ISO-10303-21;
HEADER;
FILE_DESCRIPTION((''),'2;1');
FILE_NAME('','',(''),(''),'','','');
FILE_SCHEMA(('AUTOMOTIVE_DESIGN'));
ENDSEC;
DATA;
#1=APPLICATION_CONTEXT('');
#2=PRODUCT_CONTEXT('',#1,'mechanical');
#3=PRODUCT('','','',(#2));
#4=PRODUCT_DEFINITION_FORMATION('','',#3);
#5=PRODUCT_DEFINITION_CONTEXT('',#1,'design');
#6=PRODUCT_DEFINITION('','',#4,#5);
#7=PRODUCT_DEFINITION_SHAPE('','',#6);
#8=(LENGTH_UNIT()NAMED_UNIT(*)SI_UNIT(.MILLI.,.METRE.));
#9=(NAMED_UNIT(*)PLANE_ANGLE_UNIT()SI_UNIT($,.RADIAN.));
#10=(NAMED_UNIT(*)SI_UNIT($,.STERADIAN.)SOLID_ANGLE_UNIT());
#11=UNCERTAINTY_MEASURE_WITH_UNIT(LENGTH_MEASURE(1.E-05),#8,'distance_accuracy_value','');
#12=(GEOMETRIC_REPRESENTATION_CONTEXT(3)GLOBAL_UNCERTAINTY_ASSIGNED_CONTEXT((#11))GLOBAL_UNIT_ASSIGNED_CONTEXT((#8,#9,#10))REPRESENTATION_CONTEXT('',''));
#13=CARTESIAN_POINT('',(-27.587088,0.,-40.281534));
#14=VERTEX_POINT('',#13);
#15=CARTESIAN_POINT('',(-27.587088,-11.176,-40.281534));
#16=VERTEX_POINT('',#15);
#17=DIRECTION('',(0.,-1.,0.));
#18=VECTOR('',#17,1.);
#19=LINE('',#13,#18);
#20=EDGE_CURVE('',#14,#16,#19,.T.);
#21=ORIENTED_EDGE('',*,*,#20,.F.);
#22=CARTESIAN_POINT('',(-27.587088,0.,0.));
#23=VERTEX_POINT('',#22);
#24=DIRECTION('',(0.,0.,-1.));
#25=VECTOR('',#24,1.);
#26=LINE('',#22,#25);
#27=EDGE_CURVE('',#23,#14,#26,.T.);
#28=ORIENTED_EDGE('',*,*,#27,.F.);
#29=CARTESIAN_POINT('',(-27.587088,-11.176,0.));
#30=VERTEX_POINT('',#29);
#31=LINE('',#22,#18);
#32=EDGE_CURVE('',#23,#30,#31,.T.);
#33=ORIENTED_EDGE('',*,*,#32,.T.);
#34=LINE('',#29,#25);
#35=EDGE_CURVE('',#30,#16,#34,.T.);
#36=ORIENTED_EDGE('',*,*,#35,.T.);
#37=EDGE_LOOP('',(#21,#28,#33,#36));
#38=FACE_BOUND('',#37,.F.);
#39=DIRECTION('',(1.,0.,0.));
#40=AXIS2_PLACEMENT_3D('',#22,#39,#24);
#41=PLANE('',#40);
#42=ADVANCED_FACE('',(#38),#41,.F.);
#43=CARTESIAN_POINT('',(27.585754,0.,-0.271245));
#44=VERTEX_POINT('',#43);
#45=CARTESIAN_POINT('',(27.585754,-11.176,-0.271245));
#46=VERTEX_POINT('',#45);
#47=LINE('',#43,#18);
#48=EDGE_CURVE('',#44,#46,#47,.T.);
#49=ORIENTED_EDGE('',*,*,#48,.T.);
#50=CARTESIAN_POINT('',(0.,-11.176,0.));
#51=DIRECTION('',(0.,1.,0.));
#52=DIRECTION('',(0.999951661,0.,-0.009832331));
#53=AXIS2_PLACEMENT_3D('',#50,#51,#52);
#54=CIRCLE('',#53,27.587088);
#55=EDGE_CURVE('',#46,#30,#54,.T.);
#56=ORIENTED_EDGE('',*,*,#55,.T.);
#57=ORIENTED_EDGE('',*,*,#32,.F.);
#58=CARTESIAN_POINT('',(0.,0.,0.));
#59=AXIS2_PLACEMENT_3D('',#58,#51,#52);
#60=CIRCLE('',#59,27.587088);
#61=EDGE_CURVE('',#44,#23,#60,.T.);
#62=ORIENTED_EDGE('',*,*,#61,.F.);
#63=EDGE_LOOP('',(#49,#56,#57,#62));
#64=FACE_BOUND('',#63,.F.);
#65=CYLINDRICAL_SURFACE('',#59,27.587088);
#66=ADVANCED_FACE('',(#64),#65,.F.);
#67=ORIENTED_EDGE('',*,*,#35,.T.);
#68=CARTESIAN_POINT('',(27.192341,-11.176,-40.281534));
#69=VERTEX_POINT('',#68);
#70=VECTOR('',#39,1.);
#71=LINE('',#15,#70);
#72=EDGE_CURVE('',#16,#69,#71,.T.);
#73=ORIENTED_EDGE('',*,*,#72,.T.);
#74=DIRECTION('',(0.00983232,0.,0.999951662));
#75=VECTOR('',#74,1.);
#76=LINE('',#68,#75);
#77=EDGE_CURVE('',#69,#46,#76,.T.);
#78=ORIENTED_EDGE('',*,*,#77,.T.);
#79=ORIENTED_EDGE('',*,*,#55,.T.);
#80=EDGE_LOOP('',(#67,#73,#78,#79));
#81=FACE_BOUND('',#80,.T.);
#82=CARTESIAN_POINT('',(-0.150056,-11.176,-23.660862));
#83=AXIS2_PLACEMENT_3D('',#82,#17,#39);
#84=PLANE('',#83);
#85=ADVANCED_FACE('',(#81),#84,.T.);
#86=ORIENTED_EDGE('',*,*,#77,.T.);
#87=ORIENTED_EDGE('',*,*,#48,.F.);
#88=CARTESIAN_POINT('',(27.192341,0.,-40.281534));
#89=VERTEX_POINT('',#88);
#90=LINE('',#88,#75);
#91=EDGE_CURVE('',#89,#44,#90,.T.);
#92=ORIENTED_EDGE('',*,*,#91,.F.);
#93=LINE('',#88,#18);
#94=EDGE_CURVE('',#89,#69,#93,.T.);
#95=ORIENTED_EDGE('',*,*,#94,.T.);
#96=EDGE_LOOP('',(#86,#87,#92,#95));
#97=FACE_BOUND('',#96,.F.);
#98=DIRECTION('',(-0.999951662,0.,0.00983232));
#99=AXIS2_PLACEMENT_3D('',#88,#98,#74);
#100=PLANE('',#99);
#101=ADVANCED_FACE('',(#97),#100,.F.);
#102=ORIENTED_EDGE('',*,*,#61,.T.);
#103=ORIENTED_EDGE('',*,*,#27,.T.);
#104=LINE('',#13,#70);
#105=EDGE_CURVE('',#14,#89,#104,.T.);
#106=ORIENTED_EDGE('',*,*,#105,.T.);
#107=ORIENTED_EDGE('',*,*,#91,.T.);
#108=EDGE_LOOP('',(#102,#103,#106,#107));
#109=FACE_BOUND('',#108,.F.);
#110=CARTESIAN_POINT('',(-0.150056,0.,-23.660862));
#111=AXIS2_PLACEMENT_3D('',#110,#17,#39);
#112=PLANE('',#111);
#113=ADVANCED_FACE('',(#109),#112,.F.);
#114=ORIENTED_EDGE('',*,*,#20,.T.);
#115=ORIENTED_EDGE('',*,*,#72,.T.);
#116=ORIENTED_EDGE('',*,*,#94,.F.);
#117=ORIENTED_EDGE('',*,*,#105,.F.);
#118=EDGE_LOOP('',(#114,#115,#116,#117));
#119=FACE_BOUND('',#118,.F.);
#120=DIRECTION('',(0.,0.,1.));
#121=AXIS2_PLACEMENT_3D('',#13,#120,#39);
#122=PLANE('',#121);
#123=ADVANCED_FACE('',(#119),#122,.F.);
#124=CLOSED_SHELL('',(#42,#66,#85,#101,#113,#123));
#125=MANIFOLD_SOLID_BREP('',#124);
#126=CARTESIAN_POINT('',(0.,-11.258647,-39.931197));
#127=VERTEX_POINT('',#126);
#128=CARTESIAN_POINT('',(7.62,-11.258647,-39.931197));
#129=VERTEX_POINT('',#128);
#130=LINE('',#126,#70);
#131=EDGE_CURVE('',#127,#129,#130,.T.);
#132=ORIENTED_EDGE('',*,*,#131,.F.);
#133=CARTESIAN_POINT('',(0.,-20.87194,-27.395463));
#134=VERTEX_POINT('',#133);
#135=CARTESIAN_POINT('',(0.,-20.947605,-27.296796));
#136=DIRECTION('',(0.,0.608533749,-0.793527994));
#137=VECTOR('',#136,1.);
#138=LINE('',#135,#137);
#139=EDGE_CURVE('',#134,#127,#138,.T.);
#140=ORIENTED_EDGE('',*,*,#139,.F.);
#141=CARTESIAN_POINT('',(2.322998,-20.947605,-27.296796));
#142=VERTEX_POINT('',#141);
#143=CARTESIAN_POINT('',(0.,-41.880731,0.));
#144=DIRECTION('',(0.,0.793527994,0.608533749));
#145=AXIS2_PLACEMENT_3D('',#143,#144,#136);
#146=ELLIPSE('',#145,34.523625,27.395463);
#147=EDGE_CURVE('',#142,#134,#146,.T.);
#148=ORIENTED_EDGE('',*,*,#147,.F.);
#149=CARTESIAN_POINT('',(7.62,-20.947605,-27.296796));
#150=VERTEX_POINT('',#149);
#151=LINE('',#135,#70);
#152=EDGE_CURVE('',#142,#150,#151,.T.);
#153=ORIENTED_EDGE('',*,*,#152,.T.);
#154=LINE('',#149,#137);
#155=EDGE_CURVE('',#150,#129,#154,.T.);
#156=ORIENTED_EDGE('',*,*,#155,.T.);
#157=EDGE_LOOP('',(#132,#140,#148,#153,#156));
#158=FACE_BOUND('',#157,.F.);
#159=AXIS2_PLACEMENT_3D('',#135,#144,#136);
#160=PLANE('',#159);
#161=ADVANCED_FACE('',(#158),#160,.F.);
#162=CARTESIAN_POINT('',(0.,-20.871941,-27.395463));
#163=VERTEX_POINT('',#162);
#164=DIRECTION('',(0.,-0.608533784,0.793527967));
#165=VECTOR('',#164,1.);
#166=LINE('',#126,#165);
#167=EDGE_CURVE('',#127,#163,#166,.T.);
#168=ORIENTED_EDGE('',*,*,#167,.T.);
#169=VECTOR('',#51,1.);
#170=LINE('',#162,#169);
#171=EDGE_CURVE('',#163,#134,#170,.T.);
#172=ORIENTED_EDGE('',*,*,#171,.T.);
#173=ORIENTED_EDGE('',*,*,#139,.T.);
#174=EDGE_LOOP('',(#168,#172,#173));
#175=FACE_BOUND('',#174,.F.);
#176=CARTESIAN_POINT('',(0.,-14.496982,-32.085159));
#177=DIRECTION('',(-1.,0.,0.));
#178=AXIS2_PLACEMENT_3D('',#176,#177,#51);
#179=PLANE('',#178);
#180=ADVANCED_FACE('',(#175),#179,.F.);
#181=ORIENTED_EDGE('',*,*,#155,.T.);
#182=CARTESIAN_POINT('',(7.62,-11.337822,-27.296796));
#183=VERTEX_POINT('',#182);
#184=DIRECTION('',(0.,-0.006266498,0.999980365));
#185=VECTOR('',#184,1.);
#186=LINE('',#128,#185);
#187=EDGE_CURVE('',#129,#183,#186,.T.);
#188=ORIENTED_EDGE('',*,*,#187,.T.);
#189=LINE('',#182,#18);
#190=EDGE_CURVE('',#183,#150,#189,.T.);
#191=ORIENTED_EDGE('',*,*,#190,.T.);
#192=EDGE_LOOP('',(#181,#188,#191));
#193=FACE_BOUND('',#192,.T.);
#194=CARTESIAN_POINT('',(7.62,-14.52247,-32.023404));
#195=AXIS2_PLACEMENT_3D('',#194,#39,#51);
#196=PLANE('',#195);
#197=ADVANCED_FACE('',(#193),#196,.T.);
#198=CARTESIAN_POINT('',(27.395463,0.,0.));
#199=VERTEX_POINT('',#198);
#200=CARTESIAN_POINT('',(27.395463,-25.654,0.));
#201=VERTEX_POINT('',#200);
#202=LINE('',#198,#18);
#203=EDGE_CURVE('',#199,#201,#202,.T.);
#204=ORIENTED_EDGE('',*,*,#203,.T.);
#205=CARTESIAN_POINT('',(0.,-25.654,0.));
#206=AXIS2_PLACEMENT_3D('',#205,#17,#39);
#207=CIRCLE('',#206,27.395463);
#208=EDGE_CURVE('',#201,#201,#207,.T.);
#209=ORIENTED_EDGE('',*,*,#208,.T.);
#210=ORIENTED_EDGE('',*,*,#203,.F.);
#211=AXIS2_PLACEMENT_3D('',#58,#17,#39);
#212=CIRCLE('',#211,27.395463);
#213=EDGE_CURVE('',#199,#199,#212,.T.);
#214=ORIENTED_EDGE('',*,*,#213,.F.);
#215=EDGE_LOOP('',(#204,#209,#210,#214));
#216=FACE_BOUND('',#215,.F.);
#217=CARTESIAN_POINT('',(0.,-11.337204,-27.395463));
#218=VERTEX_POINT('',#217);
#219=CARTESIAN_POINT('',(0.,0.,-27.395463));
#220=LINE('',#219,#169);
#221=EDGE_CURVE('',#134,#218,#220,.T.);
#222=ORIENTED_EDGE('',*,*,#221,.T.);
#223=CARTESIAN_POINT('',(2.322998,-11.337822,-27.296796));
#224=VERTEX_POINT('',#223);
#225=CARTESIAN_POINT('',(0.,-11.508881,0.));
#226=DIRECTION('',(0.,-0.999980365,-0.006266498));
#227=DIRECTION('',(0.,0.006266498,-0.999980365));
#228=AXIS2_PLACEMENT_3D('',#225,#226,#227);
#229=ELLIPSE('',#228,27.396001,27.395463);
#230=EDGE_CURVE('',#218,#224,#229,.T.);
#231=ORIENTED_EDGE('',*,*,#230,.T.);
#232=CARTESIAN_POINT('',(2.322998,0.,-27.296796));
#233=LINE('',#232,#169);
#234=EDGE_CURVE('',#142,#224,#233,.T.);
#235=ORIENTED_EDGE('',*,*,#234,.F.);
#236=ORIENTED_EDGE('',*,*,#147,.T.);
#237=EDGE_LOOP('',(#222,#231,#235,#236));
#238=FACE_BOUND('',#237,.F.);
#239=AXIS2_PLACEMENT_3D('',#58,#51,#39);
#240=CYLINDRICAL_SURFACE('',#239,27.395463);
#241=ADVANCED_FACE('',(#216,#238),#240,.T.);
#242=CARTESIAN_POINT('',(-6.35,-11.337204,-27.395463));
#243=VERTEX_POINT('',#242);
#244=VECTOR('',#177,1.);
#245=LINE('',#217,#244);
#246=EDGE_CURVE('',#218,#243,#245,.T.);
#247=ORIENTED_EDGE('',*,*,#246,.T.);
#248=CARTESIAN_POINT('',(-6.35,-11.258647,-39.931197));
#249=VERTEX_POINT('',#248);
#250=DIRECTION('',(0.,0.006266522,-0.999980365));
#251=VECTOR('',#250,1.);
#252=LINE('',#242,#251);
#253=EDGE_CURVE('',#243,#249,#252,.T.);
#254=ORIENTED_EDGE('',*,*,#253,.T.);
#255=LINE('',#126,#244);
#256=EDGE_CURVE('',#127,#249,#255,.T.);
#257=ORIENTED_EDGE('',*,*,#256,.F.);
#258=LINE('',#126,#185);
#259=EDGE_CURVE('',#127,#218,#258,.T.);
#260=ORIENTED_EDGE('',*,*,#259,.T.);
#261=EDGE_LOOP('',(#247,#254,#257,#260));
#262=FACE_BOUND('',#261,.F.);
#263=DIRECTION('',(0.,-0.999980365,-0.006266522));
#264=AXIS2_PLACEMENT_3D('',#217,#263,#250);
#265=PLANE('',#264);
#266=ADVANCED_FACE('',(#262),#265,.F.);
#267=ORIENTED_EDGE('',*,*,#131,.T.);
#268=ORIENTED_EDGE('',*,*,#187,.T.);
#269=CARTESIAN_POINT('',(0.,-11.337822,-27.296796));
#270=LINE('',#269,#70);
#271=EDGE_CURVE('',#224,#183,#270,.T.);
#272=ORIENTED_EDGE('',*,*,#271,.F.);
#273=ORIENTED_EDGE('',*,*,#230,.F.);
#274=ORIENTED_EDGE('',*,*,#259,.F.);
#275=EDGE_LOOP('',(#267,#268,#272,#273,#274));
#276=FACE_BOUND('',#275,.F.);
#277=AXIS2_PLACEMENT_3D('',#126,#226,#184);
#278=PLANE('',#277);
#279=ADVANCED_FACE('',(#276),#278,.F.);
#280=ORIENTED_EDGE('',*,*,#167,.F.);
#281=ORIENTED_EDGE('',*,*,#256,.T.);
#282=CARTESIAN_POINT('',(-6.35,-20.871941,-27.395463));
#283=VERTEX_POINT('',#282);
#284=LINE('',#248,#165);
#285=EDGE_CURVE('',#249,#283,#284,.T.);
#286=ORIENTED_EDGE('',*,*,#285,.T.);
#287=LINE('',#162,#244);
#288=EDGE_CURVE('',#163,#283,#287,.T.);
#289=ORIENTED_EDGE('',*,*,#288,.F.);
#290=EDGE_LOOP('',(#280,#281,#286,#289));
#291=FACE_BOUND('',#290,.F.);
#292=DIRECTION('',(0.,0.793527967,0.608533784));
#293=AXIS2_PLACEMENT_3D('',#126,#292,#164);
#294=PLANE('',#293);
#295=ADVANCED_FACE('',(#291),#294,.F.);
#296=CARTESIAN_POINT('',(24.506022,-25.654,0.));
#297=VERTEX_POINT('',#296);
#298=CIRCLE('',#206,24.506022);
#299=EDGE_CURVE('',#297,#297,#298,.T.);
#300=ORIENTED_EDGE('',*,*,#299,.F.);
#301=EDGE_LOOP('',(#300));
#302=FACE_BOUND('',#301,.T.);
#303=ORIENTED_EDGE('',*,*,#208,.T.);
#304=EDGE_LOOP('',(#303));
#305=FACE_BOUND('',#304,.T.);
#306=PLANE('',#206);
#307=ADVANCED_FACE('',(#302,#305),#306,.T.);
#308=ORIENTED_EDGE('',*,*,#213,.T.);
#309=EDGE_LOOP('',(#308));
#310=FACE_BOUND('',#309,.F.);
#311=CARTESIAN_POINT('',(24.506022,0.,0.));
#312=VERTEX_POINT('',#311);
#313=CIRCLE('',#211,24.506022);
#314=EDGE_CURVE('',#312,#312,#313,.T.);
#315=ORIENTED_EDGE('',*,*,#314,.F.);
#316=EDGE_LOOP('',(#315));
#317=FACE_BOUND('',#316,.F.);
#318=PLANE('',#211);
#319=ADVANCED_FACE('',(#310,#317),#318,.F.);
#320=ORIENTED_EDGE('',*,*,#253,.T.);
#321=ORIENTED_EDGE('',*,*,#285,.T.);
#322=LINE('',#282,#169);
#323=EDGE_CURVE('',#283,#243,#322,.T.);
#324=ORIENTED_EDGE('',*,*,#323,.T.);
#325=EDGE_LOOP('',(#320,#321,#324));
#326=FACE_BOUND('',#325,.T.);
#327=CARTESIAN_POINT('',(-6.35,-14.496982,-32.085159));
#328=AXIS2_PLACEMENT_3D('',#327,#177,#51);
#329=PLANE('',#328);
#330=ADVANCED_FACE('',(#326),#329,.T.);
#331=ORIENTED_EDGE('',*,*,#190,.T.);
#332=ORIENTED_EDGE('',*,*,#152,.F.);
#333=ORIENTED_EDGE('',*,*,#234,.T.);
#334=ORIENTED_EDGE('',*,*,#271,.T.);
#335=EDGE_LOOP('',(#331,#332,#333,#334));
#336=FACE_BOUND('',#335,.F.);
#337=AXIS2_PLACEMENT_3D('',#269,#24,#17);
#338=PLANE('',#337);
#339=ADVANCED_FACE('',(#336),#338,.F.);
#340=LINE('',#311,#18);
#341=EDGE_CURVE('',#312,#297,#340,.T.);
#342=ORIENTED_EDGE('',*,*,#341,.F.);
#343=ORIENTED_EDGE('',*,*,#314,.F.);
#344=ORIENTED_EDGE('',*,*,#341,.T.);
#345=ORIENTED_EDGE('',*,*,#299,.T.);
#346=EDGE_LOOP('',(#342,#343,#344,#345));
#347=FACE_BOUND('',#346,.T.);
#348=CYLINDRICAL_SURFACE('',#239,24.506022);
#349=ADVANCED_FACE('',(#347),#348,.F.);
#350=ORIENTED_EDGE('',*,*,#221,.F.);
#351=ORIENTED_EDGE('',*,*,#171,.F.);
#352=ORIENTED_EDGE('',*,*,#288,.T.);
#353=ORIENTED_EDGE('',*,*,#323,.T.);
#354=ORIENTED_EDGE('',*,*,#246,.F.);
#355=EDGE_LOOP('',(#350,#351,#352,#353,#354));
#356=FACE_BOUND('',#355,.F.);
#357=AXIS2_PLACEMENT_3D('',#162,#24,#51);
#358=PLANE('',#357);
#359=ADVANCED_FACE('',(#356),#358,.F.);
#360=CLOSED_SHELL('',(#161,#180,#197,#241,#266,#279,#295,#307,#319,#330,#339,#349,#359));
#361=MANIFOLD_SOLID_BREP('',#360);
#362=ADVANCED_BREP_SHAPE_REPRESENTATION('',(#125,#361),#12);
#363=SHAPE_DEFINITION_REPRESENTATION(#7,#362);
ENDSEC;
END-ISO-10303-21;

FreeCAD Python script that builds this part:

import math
import FreeCAD as App
import Part
import Sketcher
Q = App.Units.Quantity


def add_polygon(sketch, points):
    """Adds a closed chain of lines whose ends are joined by coincident constraints."""
    first, n = sketch.GeometryCount, len(points)
    for a, b in zip(points, points[1:] + points[:1]):
        sketch.addGeometry(Part.LineSegment(App.Vector(*a, 0), App.Vector(*b, 0)), False)
    for i in range(n):
        sketch.addConstraint(Sketcher.Constraint("Coincident", first + i, 2, first + (i + 1) % n, 1))

doc = App.newDocument("Part")
params = doc.addObject("Spreadsheet::Sheet", "Params")
for row, (alias, value) in enumerate([
    ("pad1_length", "0.44 in"),
    ("pad2_length", "1.01 in"),
    ("pad3_length", "0.3 in"),
    ("pad4_length", "0.25 in"),
], start=1):
    params.set(f"A{row}", alias)
    params.set(f"B{row}", "=" + value)
    params.setAlias(f"B{row}", alias)

body = doc.addObject("PartDesign::Body", "Body")

sketch1 = body.newObject("Sketcher::SketchObject", "Sketch")
sketch1.AttachmentSupport = (doc.getObject("XZ_Plane"), [""])
sketch1.MapMode = "FlatFace"
sketch1.addGeometry(Part.ArcOfCircle(Part.Circle(App.Vector(0, 0, 0), App.Vector(0, 0, 1), 28), math.radians(-180), math.radians(-1)), False)
sketch1.addGeometry(Part.LineSegment(App.Vector(-28, 0, 0), App.Vector(-28, -40, 0)), False)
sketch1.addGeometry(Part.LineSegment(App.Vector(-28, -40, 0), App.Vector(27, -40, 0)), False)
sketch1.addGeometry(Part.LineSegment(App.Vector(27, -40, 0), App.Vector(28, 0, 0)), False)
sketch1.addConstraint(Sketcher.Constraint("Tangent", 0, 1, 1, 1))
sketch1.addConstraint(Sketcher.Constraint("Coincident", 1, 2, 2, 1))
sketch1.addConstraint(Sketcher.Constraint("Coincident", 2, 2, 3, 1))
sketch1.addConstraint(Sketcher.Constraint("Tangent", 3, 2, 0, 2))
sketch1.addConstraint(Sketcher.Constraint("Vertical", 1))
sketch1.addConstraint(Sketcher.Constraint("Horizontal", 2))
sketch1.addConstraint(Sketcher.Constraint("Coincident", 0, 3, -1, 1))
sketch1.addConstraint(Sketcher.Constraint("Radius", 0, Q("27.587088 mm")))
sketch1.addConstraint(Sketcher.Constraint("DistanceX", 2, 1, 2, 2, Q("54.779429 mm")))
sketch1.addConstraint(Sketcher.Constraint("DistanceY", 1, 2, 1, 1, Q("40.281534 mm")))
pad1 = body.newObject("PartDesign::Pad", "Pad")
pad1.Profile = sketch1
pad1.setExpression("Length", "Params.pad1_length")
body2 = doc.addObject("PartDesign::Body", "Body001")

sketch2 = body2.newObject("Sketcher::SketchObject", "Sketch001")
sketch2.AttachmentSupport = (doc.getObject("XZ_Plane001"), [""])
sketch2.MapMode = "FlatFace"
sketch2.addGeometry(Part.Circle(App.Vector(0, 0, 0), App.Vector(0, 0, 1), 27), False)
sketch2.addGeometry(Part.Circle(App.Vector(0, 0, 0), App.Vector(0, 0, 1), 25), False)
sketch2.addConstraint(Sketcher.Constraint("Coincident", 0, 3, -1, 1))
sketch2.addConstraint(Sketcher.Constraint("Coincident", 1, 3, -1, 1))
sketch2.addConstraint(Sketcher.Constraint("Diameter", 0, Q("54.790926 mm")))
sketch2.addConstraint(Sketcher.Constraint("Diameter", 1, Q("49.012044 mm")))
pad2 = body2.newObject("PartDesign::Pad", "Pad001")
pad2.Profile = sketch2
pad2.setExpression("Length", "Params.pad2_length")

sketch3 = body2.newObject("Sketcher::SketchObject", "Sketch002")
sketch3.AttachmentSupport = (doc.getObject("YZ_Plane001"), [""])
sketch3.MapMode = "FlatFace"
add_polygon(sketch3, [(-11, -27), (-21, -27), (-11, -40)])
sketch3.addConstraint(Sketcher.Constraint("Horizontal", 0))
sketch3.addConstraint(Sketcher.Constraint("DistanceY", 1, 2, 0, 2, Q("12.634401 mm")))
sketch3.addConstraint(Sketcher.Constraint("Distance", 1, Q("15.921809 mm")))
sketch3.addConstraint(Sketcher.Constraint("Distance", 2, Q("12.634649 mm")))
sketch3.addConstraint(Sketcher.Constraint("DistanceX", 2, 2, -1, 1, Q("11.337822 mm")))
sketch3.addConstraint(Sketcher.Constraint("DistanceY", 0, 2, -1, 1, Q("27.296796 mm")))
pad3 = body2.newObject("PartDesign::Pad", "Pad002")
pad3.Profile = sketch3
pad3.setExpression("Length", "Params.pad3_length")

sketch4 = body2.newObject("Sketcher::SketchObject", "Sketch003")
sketch4.AttachmentSupport = (doc.getObject("YZ_Plane001"), [""])
sketch4.MapMode = "FlatFace"
add_polygon(sketch4, [(-11, -27), (-11, -40), (-21, -27)])
sketch4.addConstraint(Sketcher.Constraint("Horizontal", 2))
sketch4.addConstraint(Sketcher.Constraint("Distance", 0, Q("12.53598 mm")))
sketch4.addConstraint(Sketcher.Constraint("Distance", 1, Q("15.79747 mm")))
sketch4.addConstraint(Sketcher.Constraint("DistanceX", 2, 1, 2, 2, Q("9.534737 mm")))
sketch4.addConstraint(Sketcher.Constraint("DistanceX", 1, 2, -1, 1, Q("20.871941 mm")))
sketch4.addConstraint(Sketcher.Constraint("DistanceY", 0, 2, -1, 1, Q("39.931197 mm")))
pad4 = body2.newObject("PartDesign::Pad", "Pad003")
pad4.Profile = sketch4
pad4.setExpression("Length", "Params.pad4_length")
pad4.Reversed = True

doc.recompute()
